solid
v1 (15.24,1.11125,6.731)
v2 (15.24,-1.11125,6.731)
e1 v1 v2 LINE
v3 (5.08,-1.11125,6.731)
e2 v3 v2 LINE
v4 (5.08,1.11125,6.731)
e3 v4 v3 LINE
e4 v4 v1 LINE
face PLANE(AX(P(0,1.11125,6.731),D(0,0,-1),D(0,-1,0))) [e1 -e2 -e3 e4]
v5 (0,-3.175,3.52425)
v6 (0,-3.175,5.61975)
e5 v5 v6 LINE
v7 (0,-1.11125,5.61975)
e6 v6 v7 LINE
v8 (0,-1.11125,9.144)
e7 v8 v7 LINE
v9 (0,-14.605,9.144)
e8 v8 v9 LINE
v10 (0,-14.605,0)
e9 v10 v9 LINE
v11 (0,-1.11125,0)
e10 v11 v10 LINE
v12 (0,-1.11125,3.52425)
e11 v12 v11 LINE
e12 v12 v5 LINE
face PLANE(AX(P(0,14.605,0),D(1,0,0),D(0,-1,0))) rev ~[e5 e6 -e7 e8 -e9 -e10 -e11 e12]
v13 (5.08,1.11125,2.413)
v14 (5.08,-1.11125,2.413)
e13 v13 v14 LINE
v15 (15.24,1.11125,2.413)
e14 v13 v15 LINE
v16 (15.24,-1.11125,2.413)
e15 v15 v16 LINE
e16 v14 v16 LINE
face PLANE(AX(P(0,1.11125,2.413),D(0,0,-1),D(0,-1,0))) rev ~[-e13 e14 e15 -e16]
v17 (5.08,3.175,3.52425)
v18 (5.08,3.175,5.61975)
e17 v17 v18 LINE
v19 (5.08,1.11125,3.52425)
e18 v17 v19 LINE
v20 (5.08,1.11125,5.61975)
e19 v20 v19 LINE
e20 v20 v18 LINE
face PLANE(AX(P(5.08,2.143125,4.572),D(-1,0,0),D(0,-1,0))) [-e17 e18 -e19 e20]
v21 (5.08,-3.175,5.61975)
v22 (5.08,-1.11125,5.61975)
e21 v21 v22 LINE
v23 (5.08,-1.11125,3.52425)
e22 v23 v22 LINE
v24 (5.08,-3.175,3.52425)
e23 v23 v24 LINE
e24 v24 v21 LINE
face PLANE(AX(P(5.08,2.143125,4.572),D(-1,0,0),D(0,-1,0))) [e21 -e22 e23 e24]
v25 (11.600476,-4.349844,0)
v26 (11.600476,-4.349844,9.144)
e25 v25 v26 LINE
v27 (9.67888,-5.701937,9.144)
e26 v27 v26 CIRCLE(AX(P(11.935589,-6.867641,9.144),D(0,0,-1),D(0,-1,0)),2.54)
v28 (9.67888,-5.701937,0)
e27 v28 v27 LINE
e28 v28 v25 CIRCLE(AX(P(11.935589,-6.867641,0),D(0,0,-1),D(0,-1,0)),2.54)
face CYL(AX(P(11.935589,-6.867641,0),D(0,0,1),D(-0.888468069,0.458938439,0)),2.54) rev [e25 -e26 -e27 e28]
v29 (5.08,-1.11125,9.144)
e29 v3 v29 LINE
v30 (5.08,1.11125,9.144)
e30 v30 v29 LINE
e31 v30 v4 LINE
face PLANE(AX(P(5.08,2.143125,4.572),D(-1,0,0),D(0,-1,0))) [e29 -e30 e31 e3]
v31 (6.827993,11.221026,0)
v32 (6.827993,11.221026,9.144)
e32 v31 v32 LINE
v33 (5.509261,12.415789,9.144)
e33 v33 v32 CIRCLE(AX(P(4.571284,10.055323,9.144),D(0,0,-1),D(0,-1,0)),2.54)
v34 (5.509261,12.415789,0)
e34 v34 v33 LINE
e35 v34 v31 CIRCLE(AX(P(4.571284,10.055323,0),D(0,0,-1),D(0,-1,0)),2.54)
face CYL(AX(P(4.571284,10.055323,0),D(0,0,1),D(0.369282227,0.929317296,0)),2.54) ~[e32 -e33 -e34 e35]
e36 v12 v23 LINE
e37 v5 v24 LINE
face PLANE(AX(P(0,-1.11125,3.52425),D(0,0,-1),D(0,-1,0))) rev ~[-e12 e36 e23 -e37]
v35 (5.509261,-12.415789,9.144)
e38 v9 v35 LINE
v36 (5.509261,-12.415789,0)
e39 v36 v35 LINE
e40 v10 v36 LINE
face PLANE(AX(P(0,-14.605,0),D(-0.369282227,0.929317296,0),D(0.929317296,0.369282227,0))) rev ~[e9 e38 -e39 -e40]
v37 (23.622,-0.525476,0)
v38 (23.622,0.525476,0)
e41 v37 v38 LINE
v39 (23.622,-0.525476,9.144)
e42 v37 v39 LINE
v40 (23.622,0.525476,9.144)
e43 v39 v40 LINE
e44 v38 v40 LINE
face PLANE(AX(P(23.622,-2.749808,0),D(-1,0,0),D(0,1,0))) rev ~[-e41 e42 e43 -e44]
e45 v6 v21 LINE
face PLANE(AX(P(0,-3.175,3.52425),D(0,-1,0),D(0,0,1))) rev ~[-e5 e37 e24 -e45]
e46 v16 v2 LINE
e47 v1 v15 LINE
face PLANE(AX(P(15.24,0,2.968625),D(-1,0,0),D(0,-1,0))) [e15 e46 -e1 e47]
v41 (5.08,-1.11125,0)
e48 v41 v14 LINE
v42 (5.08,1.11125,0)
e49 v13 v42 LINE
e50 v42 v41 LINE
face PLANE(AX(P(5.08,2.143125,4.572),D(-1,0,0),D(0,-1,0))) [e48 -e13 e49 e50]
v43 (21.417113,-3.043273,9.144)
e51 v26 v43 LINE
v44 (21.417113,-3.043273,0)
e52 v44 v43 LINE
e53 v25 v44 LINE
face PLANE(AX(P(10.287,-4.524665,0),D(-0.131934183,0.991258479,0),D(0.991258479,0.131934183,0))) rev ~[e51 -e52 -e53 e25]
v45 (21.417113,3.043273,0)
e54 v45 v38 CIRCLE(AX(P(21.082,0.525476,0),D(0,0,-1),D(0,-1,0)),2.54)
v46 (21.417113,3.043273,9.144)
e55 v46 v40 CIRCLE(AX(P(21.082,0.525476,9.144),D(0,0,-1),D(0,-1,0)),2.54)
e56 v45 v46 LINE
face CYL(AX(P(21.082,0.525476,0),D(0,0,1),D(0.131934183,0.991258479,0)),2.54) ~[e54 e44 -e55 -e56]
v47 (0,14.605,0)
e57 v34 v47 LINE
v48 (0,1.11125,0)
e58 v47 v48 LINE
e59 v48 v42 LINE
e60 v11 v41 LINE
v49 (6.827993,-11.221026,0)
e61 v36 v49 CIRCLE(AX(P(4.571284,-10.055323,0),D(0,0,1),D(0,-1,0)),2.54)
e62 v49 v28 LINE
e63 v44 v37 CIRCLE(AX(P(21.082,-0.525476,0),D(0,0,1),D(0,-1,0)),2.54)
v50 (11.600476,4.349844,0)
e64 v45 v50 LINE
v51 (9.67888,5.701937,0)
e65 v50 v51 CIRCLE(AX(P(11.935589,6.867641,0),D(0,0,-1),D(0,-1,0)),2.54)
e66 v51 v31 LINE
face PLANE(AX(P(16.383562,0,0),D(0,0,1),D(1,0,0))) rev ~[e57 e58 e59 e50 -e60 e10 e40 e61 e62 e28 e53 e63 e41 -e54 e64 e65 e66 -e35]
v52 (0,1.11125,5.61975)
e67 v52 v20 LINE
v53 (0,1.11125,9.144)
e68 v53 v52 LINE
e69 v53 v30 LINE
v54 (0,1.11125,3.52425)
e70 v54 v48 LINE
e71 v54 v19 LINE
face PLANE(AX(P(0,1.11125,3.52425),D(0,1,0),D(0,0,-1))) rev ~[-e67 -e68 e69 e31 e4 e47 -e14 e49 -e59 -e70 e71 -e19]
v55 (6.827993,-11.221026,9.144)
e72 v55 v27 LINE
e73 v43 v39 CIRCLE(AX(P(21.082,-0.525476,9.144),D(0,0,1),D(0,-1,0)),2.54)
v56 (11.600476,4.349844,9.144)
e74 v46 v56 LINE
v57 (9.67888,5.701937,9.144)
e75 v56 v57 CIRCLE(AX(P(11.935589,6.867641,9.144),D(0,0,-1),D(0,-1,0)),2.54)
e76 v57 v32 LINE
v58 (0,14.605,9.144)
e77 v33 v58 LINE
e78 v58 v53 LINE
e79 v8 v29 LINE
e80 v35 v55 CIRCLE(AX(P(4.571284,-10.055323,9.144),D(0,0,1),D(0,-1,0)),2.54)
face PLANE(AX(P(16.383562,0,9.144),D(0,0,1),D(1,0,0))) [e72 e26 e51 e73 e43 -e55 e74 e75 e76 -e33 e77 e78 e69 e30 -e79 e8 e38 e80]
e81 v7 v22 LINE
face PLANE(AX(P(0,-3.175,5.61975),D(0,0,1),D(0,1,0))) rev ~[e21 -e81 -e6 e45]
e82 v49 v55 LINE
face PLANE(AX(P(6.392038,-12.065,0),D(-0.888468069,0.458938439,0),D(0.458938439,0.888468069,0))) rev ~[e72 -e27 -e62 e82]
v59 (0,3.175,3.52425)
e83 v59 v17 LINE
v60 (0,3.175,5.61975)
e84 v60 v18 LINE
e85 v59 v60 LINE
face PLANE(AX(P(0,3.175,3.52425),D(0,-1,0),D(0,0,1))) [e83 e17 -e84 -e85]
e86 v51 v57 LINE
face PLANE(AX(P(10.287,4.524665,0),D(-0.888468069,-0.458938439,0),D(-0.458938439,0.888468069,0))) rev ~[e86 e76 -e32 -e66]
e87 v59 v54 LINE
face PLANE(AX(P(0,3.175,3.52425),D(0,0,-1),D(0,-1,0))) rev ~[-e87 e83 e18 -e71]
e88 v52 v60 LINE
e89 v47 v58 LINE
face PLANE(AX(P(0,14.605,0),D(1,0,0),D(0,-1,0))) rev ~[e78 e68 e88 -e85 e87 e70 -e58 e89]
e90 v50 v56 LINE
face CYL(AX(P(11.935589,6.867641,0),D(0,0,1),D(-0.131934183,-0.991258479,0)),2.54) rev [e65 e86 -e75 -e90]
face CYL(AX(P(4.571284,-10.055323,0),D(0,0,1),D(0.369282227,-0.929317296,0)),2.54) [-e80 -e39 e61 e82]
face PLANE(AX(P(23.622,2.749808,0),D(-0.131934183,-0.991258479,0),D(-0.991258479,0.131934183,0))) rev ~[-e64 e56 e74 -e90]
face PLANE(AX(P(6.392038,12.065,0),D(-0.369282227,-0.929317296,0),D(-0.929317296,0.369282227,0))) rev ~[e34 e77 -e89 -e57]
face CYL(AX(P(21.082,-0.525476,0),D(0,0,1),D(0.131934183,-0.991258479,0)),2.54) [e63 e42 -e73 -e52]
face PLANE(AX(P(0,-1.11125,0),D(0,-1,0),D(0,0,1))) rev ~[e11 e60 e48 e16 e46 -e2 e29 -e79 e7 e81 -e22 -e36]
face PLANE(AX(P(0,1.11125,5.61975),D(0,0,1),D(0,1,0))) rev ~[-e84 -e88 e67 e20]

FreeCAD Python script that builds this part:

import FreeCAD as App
import Part
import Sketcher

V = App.Vector
Q = App.Units.Quantity


def edges_at(feature, points):
    """Names of the edges that pass closest to the given points."""
    edges = feature.Shape.Edges
    near = lambda p: min(range(len(edges)), key=lambda i: edges[i].distToShape(Part.Vertex(*p))[0])
    return sorted({f"Edge{near(p) + 1}" for p in points})

doc = App.newDocument("Part")
body = doc.addObject("PartDesign::Body", "Body")

sketch1 = body.newObject("Sketcher::SketchObject", "Sketch")
sketch1.AttachmentSupport = (doc.getObject("XY_Plane"), [""])
sketch1.MapMode = "FlatFace"
sketch1.addGeometry(Part.LineSegment(V(24, 3, 0), V(10, 5, 0)), False)
sketch1.addGeometry(Part.LineSegment(V(10, 5, 0), V(6, 12, 0)), False)
sketch1.addGeometry(Part.LineSegment(V(6, 12, 0), V(0, 15, 0)), False)
sketch1.addGeometry(Part.LineSegment(V(0, 15, 0), V(0, -15, 0)), False)
sketch1.addGeometry(Part.LineSegment(V(0, -15, 0), V(6, -12, 0)), False)
sketch1.addGeometry(Part.LineSegment(V(6, -12, 0), V(10, -5, 0)), False)
sketch1.addGeometry(Part.LineSegment(V(10, -5, 0), V(24, -3, 0)), False)
sketch1.addGeometry(Part.LineSegment(V(24, -3, 0), V(24, 3, 0)), False)
sketch1.addConstraint(Sketcher.Constraint("Coincident", 0, 2, 1, 1))
sketch1.addConstraint(Sketcher.Constraint("Coincident", 1, 2, 2, 1))
sketch1.addConstraint(Sketcher.Constraint("Coincident", 2, 2, 3, 1))
sketch1.addConstraint(Sketcher.Constraint("Coincident", 3, 2, 4, 1))
sketch1.addConstraint(Sketcher.Constraint("Coincident", 4, 2, 5, 1))
sketch1.addConstraint(Sketcher.Constraint("Coincident", 5, 2, 6, 1))
sketch1.addConstraint(Sketcher.Constraint("Coincident", 6, 2, 7, 1))
sketch1.addConstraint(Sketcher.Constraint("Coincident", 7, 2, 0, 1))
sketch1.addConstraint(Sketcher.Constraint("Vertical", 3))
sketch1.addConstraint(Sketcher.Constraint("Vertical", 7))
sketch1.addConstraint(Sketcher.Constraint("Symmetric", 2, 2, 3, 2, -1, 1))
sketch1.addConstraint(Sketcher.Constraint("Symmetric", 1, 2, 4, 2, -1))
sketch1.addConstraint(Sketcher.Constraint("Symmetric", 0, 2, 5, 2, -1))
sketch1.addConstraint(Sketcher.Constraint("Equal", 0, 6))
sketch1.addConstraint(Sketcher.Constraint("DistanceY", 3, 2, 3, 1, Q("1.15 in")))
sketch1.addConstraint(Sketcher.Constraint("DistanceY", 1, 2, 2, 2, Q("0.1 in")))
sketch1.addConstraint(Sketcher.Constraint("DistanceX", -1, 1, 6, 2, Q("0.93 in")))
sketch1.addConstraint(Sketcher.Constraint("DistanceX", -1, 1, 0, 2, Q("0.405 in")))
sketch1.addConstraint(Sketcher.Constraint("Distance", 2, Q("6.878208 mm")))
sketch1.addConstraint(Sketcher.Constraint("DistanceY", 7, 1, 7, 2, Q("5.499615 mm")))
sketch1.addConstraint(Sketcher.Constraint("DistanceY", 5, 2, 0, 2, Q("9.04933 mm")))
pad1 = body.newObject("PartDesign::Pad", "Pad")
pad1.Profile = sketch1
pad1.Length = Q("0.36 in")

sketch2 = body.newObject("Sketcher::SketchObject", "Sketch001")
sketch2.AttachmentSupport = (doc.getObject("YZ_Plane"), [""])
sketch2.MapMode = "FlatFace"
sketch2.addGeometry(Part.LineSegment(V(3.2, 5.6, 0), V(3.2, 3.5, 0)), False)
sketch2.addGeometry(Part.LineSegment(V(3.2, 3.5, 0), V(1.1, 3.5, 0)), False)
sketch2.addGeometry(Part.LineSegment(V(1.1, 3.5, 0), V(1.1, 0, 0)), False)
sketch2.addGeometry(Part.LineSegment(V(1.1, 0, 0), V(-1.1, 0, 0)), False)
sketch2.addGeometry(Part.LineSegment(V(-1.1, 0, 0), V(-1.1, 3.5, 0)), False)
sketch2.addGeometry(Part.LineSegment(V(-1.1, 3.5, 0), V(-3.2, 3.5, 0)), False)
sketch2.addGeometry(Part.LineSegment(V(-3.2, 3.5, 0), V(-3.2, 5.6, 0)), False)
sketch2.addGeometry(Part.LineSegment(V(-3.2, 5.6, 0), V(-1.1, 5.6, 0)), False)
sketch2.addGeometry(Part.LineSegment(V(-1.1, 5.6, 0), V(-1.1, 9.1, 0)), False)
sketch2.addGeometry(Part.LineSegment(V(-1.1, 9.1, 0), V(1.1, 9.1, 0)), False)
sketch2.addGeometry(Part.LineSegment(V(1.1, 9.1, 0), V(1.1, 5.6, 0)), False)
sketch2.addGeometry(Part.LineSegment(V(1.1, 5.6, 0), V(3.2, 5.6, 0)), False)
sketch2.addConstraint(Sketcher.Constraint("Coincident", 0, 2, 1, 1))
sketch2.addConstraint(Sketcher.Constraint("Coincident", 1, 2, 2, 1))
sketch2.addConstraint(Sketcher.Constraint("Coincident", 2, 2, 3, 1))
sketch2.addConstraint(Sketcher.Constraint("Coincident", 3, 2, 4, 1))
sketch2.addConstraint(Sketcher.Constraint("Coincident", 4, 2, 5, 1))
sketch2.addConstraint(Sketcher.Constraint("Coincident", 5, 2, 6, 1))
sketch2.addConstraint(Sketcher.Constraint("Coincident", 6, 2, 7, 1))
sketch2.addConstraint(Sketcher.Constraint("Coincident", 7, 2, 8, 1))
sketch2.addConstraint(Sketcher.Constraint("Coincident", 8, 2, 9, 1))
sketch2.addConstraint(Sketcher.Constraint("Coincident", 9, 2, 10, 1))
sketch2.addConstraint(Sketcher.Constraint("Coincident", 10, 2, 11, 1))
sketch2.addConstraint(Sketcher.Constraint("Coincident", 11, 2, 0, 1))
sketch2.addConstraint(Sketcher.Constraint("Vertical", 0))
sketch2.addConstraint(Sketcher.Constraint("Horizontal", 1))
sketch2.addConstraint(Sketcher.Constraint("Vertical", 2))
sketch2.addConstraint(Sketcher.Constraint("Horizontal", 3))
sketch2.addConstraint(Sketcher.Constraint("Vertical", 4))
sketch2.addConstraint(Sketcher.Constraint("Horizontal", 5))
sketch2.addConstraint(Sketcher.Constraint("Vertical", 6))
sketch2.addConstraint(Sketcher.Constraint("Horizontal", 7))
sketch2.addConstraint(Sketcher.Constraint("Vertical", 8))
sketch2.addConstraint(Sketcher.Constraint("Horizontal", 9))
sketch2.addConstraint(Sketcher.Constraint("Vertical", 10))
sketch2.addConstraint(Sketcher.Constraint("Horizontal", 11))
sketch2.addConstraint(Sketcher.Constraint("Symmetric", 2, 2, 3, 2, -1, 1))
sketch2.addConstraint(Sketcher.Constraint("Symmetric", 0, 2, 5, 2, -2))
sketch2.addConstraint(Sketcher.Constraint("Symmetric", 7, 2, 10, 2, -2))
sketch2.addConstraint(Sketcher.Constraint("Vertical", 4, 2, 7, 2))
sketch2.addConstraint(Sketcher.Constraint("Equal", 4, 8))
sketch2.addConstraint(Sketcher.Constraint("DistanceY", -1, 1, 8, 2, Q("0.36 in")))
sketch2.addConstraint(Sketcher.Constraint("DistanceX", 5, 2, 0, 2, Q("0.25 in")))
sketch2.addConstraint(Sketcher.Constraint("DistanceX", 3, 2, 3, 1, Q("0.0875 in")))
sketch2.addConstraint(Sketcher.Constraint("DistanceY", 0, 2, 0, 1, Q("0.0825 in")))
pocket1 = body.newObject("PartDesign::Pocket", "Pocket")
pocket1.Profile = sketch2
pocket1.Length = Q("0.2 in")
pocket1.Reversed = True

sketch3 = body.newObject("Sketcher::SketchObject", "Sketch002")
sketch3.AttachmentSupport = (doc.getObject("YZ_Plane"), [""])
sketch3.MapMode = "FlatFace"
sketch3.addGeometry(Part.LineSegment(V(1.1, 2.4, 0), V(-1.1, 2.4, 0)), False)
sketch3.addGeometry(Part.LineSegment(V(-1.1, 2.4, 0), V(-1.1, 6.7, 0)), False)
sketch3.addGeometry(Part.LineSegment(V(-1.1, 6.7, 0), V(1.1, 6.7, 0)), False)
sketch3.addGeometry(Part.LineSegment(V(1.1, 6.7, 0), V(1.1, 2.4, 0)), False)
sketch3.addConstraint(Sketcher.Constraint("Coincident", 0, 2, 1, 1))
sketch3.addConstraint(Sketcher.Constraint("Coincident", 1, 2, 2, 1))
sketch3.addConstraint(Sketcher.Constraint("Coincident", 2, 2, 3, 1))
sketch3.addConstraint(Sketcher.Constraint("Coincident", 3, 2, 0, 1))
sketch3.addConstraint(Sketcher.Constraint("Horizontal", 0))
sketch3.addConstraint(Sketcher.Constraint("Vertical", 1))
sketch3.addConstraint(Sketcher.Constraint("Horizontal", 2))
sketch3.addConstraint(Sketcher.Constraint("Vertical", 3))
sketch3.addConstraint(Sketcher.Constraint("DistanceY", 1, 1, 1, 2, Q("0.17 in")))
sketch3.addConstraint(Sketcher.Constraint("DistanceX", 0, 2, 0, 1, Q("0.0875 in")))
sketch3.addConstraint(Sketcher.Constraint("DistanceY", -1, 1, 0, 2, Q("0.095 in")))
sketch3.addConstraint(Sketcher.Constraint("DistanceX", 0, 2, -1, 1, Q("1.11125 mm")))
pocket2 = body.newObject("PartDesign::Pocket", "Pocket001")
pocket2.Profile = sketch3
pocket2.Length = Q("0.6 in")
pocket2.Reversed = True
doc.recompute()

fillet = body.newObject("PartDesign::Fillet", "Fillet")
fillet.Base = (pocket2, edges_at(pocket2, [
    (23.622, 2.75, 4.572),
    (23.622, -2.75, 4.572),
    (10.287, 4.525, 4.572),
    (6.392, 12.065, 4.572),
    (10.287, -4.525, 4.572),
    (6.392, -12.065, 4.572),
]))
fillet.Radius = Q("0.1 in")

doc.recompute()
